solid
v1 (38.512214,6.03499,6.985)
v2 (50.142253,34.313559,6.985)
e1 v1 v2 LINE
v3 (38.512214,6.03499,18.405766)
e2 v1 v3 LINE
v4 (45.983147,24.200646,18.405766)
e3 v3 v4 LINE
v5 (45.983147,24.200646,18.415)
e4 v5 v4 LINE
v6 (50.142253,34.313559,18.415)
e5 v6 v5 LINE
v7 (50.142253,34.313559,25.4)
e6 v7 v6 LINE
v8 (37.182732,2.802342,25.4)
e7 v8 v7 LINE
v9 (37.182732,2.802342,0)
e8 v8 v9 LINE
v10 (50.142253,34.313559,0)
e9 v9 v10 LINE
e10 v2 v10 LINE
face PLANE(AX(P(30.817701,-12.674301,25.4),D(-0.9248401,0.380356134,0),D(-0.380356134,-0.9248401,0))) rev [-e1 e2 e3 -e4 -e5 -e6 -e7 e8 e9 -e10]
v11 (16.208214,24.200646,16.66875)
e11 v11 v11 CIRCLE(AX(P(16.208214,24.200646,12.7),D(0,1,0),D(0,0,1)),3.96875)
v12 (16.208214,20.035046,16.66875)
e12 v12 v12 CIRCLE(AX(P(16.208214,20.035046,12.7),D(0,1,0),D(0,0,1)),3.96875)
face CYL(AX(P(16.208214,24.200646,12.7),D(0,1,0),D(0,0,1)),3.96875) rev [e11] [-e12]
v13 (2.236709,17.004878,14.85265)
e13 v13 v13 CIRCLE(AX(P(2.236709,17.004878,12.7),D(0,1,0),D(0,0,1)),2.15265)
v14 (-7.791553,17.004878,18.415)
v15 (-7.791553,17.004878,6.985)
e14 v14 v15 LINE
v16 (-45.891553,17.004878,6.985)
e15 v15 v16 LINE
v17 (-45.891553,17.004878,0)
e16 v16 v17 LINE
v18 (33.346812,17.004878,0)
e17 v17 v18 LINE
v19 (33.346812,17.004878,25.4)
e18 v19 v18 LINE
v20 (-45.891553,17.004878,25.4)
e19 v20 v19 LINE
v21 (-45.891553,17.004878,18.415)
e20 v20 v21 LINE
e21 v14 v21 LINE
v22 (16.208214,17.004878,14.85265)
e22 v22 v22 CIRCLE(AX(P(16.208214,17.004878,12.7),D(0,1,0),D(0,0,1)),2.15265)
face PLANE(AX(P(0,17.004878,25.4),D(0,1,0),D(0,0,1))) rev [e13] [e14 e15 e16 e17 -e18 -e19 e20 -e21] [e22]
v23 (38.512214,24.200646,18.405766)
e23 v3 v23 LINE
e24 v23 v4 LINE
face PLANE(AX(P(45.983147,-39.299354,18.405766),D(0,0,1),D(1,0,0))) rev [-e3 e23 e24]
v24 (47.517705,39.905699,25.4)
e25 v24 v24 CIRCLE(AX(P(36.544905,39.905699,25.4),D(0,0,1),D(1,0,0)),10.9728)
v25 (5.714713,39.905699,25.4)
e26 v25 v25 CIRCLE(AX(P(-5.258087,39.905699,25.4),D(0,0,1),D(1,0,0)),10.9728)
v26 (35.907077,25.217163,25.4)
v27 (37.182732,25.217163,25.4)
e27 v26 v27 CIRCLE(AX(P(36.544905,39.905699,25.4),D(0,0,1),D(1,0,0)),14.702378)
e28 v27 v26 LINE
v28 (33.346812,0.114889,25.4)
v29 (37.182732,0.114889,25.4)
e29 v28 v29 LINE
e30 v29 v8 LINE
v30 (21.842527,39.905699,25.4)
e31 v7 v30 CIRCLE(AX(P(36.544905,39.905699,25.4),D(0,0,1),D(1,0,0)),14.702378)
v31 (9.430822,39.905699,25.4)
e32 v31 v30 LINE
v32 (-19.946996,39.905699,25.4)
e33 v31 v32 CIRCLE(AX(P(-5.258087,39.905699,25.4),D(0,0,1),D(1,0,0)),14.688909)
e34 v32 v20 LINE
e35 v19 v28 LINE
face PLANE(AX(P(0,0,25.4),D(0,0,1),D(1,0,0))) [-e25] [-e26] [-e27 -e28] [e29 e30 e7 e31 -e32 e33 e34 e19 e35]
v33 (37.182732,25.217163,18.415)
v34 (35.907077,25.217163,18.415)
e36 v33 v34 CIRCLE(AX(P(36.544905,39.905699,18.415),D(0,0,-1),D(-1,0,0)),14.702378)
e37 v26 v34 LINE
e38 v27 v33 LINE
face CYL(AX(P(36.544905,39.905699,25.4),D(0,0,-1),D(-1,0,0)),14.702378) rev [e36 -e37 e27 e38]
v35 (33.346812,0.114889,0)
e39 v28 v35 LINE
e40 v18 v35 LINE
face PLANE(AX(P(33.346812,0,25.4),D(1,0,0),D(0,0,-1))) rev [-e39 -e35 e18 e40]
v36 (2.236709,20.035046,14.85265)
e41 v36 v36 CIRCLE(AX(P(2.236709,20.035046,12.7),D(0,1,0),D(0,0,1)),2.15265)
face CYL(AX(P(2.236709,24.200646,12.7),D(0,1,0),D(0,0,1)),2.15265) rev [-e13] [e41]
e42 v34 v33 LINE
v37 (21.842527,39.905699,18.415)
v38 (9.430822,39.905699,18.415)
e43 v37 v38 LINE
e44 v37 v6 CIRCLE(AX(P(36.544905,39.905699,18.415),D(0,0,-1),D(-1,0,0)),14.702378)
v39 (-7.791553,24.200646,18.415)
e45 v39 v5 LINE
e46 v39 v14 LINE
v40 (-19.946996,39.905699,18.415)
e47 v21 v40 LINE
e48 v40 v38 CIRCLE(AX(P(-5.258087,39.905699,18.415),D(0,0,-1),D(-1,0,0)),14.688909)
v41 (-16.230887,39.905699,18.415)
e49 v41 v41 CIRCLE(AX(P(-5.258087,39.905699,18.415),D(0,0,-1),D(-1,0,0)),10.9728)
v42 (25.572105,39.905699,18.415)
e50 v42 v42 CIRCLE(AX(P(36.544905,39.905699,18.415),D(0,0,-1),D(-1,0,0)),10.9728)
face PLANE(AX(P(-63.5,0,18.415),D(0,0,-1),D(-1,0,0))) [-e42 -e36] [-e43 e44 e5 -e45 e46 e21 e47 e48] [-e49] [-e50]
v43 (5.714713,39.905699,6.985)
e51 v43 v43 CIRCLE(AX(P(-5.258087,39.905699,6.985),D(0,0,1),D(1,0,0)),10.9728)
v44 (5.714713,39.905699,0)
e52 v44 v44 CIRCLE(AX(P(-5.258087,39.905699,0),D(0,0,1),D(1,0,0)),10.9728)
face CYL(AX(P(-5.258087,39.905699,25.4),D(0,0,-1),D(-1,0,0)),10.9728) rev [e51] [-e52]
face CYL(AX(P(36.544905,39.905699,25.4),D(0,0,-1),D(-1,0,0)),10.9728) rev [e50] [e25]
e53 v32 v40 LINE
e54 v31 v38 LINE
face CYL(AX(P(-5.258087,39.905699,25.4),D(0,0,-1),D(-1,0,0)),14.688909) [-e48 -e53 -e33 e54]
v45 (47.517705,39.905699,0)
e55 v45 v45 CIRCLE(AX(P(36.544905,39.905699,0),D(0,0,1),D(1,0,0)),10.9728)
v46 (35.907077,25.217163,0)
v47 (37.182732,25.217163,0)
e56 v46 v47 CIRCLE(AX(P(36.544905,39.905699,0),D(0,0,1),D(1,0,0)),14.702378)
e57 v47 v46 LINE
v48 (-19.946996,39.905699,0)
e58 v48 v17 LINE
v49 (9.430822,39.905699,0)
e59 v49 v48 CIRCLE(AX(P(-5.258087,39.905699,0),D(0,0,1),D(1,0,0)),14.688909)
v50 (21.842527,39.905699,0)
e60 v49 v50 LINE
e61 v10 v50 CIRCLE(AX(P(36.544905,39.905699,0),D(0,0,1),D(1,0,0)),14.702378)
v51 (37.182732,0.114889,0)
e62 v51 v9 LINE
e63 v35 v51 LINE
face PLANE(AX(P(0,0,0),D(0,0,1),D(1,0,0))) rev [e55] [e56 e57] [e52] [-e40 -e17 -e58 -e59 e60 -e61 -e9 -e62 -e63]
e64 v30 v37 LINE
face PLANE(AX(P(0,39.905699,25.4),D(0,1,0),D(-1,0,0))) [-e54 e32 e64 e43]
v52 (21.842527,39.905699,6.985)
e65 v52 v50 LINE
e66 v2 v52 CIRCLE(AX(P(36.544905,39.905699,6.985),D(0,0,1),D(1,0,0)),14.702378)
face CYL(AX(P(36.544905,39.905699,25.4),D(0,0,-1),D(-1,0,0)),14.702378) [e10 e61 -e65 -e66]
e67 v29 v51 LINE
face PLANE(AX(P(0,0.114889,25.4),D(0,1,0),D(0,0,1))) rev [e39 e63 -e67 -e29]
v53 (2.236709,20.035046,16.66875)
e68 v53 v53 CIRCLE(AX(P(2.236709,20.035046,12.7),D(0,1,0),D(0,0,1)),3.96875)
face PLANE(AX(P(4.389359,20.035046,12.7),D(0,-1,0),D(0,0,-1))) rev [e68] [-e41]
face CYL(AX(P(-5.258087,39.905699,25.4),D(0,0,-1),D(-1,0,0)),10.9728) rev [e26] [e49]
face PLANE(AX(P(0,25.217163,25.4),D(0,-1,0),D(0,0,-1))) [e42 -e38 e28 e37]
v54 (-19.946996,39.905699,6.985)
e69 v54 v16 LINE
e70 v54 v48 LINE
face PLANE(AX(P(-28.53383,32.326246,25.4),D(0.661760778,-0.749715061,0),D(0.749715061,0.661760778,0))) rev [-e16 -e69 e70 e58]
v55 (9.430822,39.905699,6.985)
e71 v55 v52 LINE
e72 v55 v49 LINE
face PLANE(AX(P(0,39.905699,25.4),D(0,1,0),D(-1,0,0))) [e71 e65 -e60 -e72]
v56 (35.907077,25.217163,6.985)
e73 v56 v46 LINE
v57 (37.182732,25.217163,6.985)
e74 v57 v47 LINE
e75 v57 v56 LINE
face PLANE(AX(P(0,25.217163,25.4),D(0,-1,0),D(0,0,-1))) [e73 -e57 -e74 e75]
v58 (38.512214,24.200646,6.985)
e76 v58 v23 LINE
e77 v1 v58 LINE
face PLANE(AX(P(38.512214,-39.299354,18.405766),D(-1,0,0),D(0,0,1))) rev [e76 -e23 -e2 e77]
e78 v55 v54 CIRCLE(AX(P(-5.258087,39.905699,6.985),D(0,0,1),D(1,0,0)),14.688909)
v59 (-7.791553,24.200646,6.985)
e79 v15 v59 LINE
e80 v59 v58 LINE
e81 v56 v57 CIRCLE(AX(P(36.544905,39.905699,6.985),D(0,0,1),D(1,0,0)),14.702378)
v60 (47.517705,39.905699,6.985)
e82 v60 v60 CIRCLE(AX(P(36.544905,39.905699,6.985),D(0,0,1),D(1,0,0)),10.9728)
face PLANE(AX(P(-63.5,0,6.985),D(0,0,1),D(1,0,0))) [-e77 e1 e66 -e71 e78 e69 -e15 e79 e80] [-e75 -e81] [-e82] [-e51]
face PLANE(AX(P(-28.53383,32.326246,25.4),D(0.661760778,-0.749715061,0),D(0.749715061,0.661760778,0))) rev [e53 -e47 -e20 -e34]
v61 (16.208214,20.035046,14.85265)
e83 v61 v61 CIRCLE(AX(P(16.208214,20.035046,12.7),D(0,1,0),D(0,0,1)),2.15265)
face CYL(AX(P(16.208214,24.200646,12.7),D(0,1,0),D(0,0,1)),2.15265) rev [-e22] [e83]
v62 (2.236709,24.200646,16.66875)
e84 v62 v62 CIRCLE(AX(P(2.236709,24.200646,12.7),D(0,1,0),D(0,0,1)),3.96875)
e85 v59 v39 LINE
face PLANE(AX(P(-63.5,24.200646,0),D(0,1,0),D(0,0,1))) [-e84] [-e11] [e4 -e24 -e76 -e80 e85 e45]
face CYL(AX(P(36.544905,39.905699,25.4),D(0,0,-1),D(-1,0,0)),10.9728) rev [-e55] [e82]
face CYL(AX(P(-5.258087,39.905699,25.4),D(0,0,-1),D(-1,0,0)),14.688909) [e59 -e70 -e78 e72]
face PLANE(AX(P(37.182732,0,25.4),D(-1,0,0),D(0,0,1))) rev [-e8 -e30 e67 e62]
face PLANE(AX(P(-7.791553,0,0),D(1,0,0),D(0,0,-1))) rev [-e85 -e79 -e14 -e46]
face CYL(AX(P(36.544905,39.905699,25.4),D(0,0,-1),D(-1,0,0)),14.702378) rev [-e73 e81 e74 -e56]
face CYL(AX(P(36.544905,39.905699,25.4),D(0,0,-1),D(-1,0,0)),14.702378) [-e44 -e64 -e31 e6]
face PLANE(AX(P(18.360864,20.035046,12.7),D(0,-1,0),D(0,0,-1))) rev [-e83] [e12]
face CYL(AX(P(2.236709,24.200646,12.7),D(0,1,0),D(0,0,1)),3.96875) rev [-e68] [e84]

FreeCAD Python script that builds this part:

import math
import FreeCAD as App
import Part
import Sketcher
Q = App.Units.Quantity


def add_polygon(sketch, points):
    """Adds a closed chain of lines whose ends are joined by coincident constraints."""
    first, n = sketch.GeometryCount, len(points)
    for a, b in zip(points, points[1:] + points[:1]):
        sketch.addGeometry(Part.LineSegment(App.Vector(*a, 0), App.Vector(*b, 0)), False)
    for i in range(n):
        sketch.addConstraint(Sketcher.Constraint("Coincident", first + i, 2, first + (i + 1) % n, 1))

doc = App.newDocument("Part")
body = doc.addObject("PartDesign::Body", "Body")

# Sketch on XY plane
sketch1 = body.newObject("Sketcher::SketchObject", "Sketch")
sketch1.AttachmentSupport = (doc.getObject("XY_Plane"), [""])
sketch1.MapMode = "FlatFace"
sketch1.addGeometry([
    Part.LineSegment(App.Vector(37.182732, 0.114889, 0), App.Vector(37.182732, 2.802342, 0)),  # 0
    Part.LineSegment(App.Vector(37.182732, 2.802342, 0), App.Vector(50.142253, 34.313559, 0)),  # 1
    Part.ArcOfCircle(Part.Circle(App.Vector(36.544905, 39.905699, 0), App.Vector(0, 0, 1), 14.702378), math.radians(-22.355744), math.radians(180)),  # 2
    Part.LineSegment(App.Vector(21.842527, 39.905699, 0), App.Vector(9.430822, 39.905699, 0)),  # 3
    Part.ArcOfCircle(Part.Circle(App.Vector(-5.258087, 39.905699, 0), App.Vector(0, 0, 1), 14.688909), math.radians(0), math.radians(180)),  # 4
    Part.LineSegment(App.Vector(-19.946996, 39.905699, 0), App.Vector(-45.891553, 17.004878, 0)),  # 5
    Part.LineSegment(App.Vector(-45.891553, 17.004878, 0), App.Vector(33.346812, 17.004878, 0)),  # 6
    Part.LineSegment(App.Vector(33.346812, 17.004878, 0), App.Vector(33.346812, 0.114889, 0)),  # 7
    Part.LineSegment(App.Vector(33.346812, 0.114889, 0), App.Vector(37.182732, 0.114889, 0)),  # 8
    Part.ArcOfCircle(Part.Circle(App.Vector(36.544905, 39.905698, 0), App.Vector(0, 0, 1), 14.702378), math.radians(-92.486421), math.radians(-87.513579)),  # 9
    Part.LineSegment(App.Vector(35.907077, 25.217163, 0), App.Vector(37.182732, 25.217163, 0)),  # 10
    Part.Circle(App.Vector(-5.258087, 39.905699, 0), App.Vector(0, 0, 1), 10.9728),  # 11
    Part.Circle(App.Vector(36.544905, 39.905699, 0), App.Vector(0, 0, 1), 10.9728),  # 12
], False)
sketch1.addConstraint([
    Sketcher.Constraint("Coincident", 0, 2, 1, 1),
    Sketcher.Constraint("Tangent", 1, 2, 2, 1),
    Sketcher.Constraint("Coincident", 2, 2, 3, 1),
    Sketcher.Constraint("Coincident", 3, 2, 4, 1),
    Sketcher.Constraint("Coincident", 4, 2, 5, 1),
    Sketcher.Constraint("Coincident", 5, 2, 6, 1),
    Sketcher.Constraint("Coincident", 6, 2, 7, 1),
    Sketcher.Constraint("Coincident", 7, 2, 8, 1),
    Sketcher.Constraint("Coincident", 8, 2, 0, 1),
    Sketcher.Constraint("Coincident", 9, 1, 10, 1),
    Sketcher.Constraint("Coincident", 10, 2, 9, 2),
    Sketcher.Constraint("Vertical", 0),
    Sketcher.Constraint("Horizontal", 3),
    Sketcher.Constraint("Horizontal", 6),
    Sketcher.Constraint("Vertical", 7),
    Sketcher.Constraint("Horizontal", 8),
    Sketcher.Constraint("Horizontal", 10),
    Sketcher.Constraint("Coincident", 9, 3, 2, 3),
    Sketcher.Constraint("Coincident", 11, 3, 4, 3),
    Sketcher.Constraint("Coincident", 12, 3, 2, 3),
    Sketcher.Constraint("Equal", 2, 9),
    Sketcher.Constraint("Equal", 11, 12),
    Sketcher.Constraint("Horizontal", 2, 3, 4, 3),
    Sketcher.Constraint("Horizontal", 12, 3, 2, 2),
    Sketcher.Constraint("Horizontal", 3, 2, 4, 2),
    Sketcher.Constraint("Vertical", 8, 2, 10, 2),
    Sketcher.Constraint("Diameter", 11, Q("0.864 in")),
    Sketcher.Constraint("Radius", 4, Q("14.688909 mm")),
    Sketcher.Constraint("Radius", 2, Q("14.702378 mm")),
    Sketcher.Constraint("DistanceX", 8, 1, 8, 2, Q("3.835921 mm")),
    Sketcher.Constraint("DistanceY", 7, 2, 7, 1, Q("16.889989 mm")),
    Sketcher.Constraint("DistanceY", -1, 1, 2, 3, Q("39.905699 mm")),
    Sketcher.Constraint("DistanceX", 4, 2, 2, 3, Q("56.491901 mm")),
    Sketcher.Constraint("Distance", 1, Q("34.07207 mm")),
    Sketcher.Constraint("Distance", 5, Q("34.60589 mm")),
    Sketcher.Constraint("DistanceX", 6, 1, 6, 2, Q("79.238365 mm")),
    Sketcher.Constraint("DistanceX", 10, 1, 10, 2, Q("1.275655 mm")),
    Sketcher.Constraint("DistanceX", -1, 1, 3, 2, Q("9.430822 mm")),
])
pad1 = body.newObject("PartDesign::Pad", "Pad")
pad1.Profile = sketch1
pad1.Length = Q("1 in")

# Sketch on YZ plane
sketch2 = body.newObject("Sketcher::SketchObject", "Sketch001")
sketch2.AttachmentSupport = (doc.getObject("YZ_Plane"), [""])
sketch2.MapMode = "FlatFace"
add_polygon(sketch2, [(54.608076, 18.415), (24.200646, 18.415), (24.200646, 6.985), (54.608076, 6.985)])  # lines 0-3
sketch2.addConstraint([
    Sketcher.Constraint("Horizontal", 0),
    Sketcher.Constraint("Vertical", 1),
    Sketcher.Constraint("Horizontal", 2),
    Sketcher.Constraint("Vertical", 3),
    Sketcher.Constraint("DistanceY", 1, 2, 1, 1, Q("0.45 in")),
    Sketcher.Constraint("DistanceY", -1, 1, 0, 2, Q("0.725 in")),
    Sketcher.Constraint("DistanceX", 0, 2, 0, 1, Q("30.40743 mm")),
    Sketcher.Constraint("DistanceX", -1, 1, 0, 2, Q("24.200646 mm")),
])
pocket1 = body.newObject("PartDesign::Pocket", "Pocket")
pocket1.Profile = sketch2
pocket1.Length = Q("5 in")
pocket1.Midplane = True

# Sketch on XZ plane
sketch3 = body.newObject("Sketcher::SketchObject", "Sketch002")
sketch3.AttachmentSupport = (doc.getObject("XZ_Plane"), [""])
sketch3.MapMode = "FlatFace"
sketch3.AttachmentOffset = App.Placement(App.Vector(0, 0, -24.200646), App.Rotation())
sketch3.addGeometry([
    Part.Circle(App.Vector(2.236709, 12.7, 0), App.Vector(0, 0, 1), 2.15265),
    Part.Circle(App.Vector(16.208214, 12.7, 0), App.Vector(0, 0, 1), 2.15265),
], False)
sketch3.addConstraint([
    Sketcher.Constraint("Equal", 0, 1),
    Sketcher.Constraint("Horizontal", 0, 3, 1, 3),
    Sketcher.Constraint("Diameter", 0, Q("0.1695 in")),
    Sketcher.Constraint("DistanceY", -1, 1, 0, 3, Q("0.5 in")),
    Sketcher.Constraint("DistanceX", -1, 1, 0, 3, Q("2.236709 mm")),
    Sketcher.Constraint("DistanceX", -1, 1, 1, 3, Q("16.208214 mm")),
])
doc.recompute()
hole = body.newObject("PartDesign::Hole", "Hole")
hole.Profile = sketch3
hole.ThreadType = "None"
hole.Diameter = Q("0.1695 in")
hole.DepthType = "Dimension"
hole.Depth = 7.195769
hole.DrillPoint = "Flat"
hole.HoleCutType = "Counterbore"
hole.HoleCutDiameter = Q("0.3125 in")
hole.HoleCutDepth = Q("0.164 in")
hole.Reversed = True

# Sketch on XZ plane
sketch4 = body.newObject("Sketcher::SketchObject", "Sketch003")
sketch4.AttachmentSupport = (doc.getObject("XZ_Plane"), [""])
sketch4.MapMode = "FlatFace"
sketch4.AttachmentOffset = App.Placement(App.Vector(0, 0, -24.200646), App.Rotation())
add_polygon(sketch4, [(38.512214, 6.985), (38.512214, 18.405766), (45.983147, 18.405766), (45.983147, 6.985)])  # lines 0-3
sketch4.addConstraint([
    Sketcher.Constraint("Vertical", 0),
    Sketcher.Constraint("Horizontal", 1),
    Sketcher.Constraint("Vertical", 2),
    Sketcher.Constraint("Horizontal", 3),
    Sketcher.Constraint("DistanceY", -1, 1, 2, 2, Q("0.275 in")),
    Sketcher.Constraint("DistanceX", 1, 1, 1, 2, Q("7.470933 mm")),
    Sketcher.Constraint("DistanceY", 0, 1, 0, 2, Q("11.420766 mm")),
    Sketcher.Constraint("DistanceX", -1, 1, 0, 2, Q("38.512214 mm")),
])
pocket2 = body.newObject("PartDesign::Pocket", "Pocket001")
pocket2.Profile = sketch4
pocket2.Length = Q("5 in")
pocket2.Midplane = True

# Sketch on YZ plane
sketch5 = body.newObject("Sketcher::SketchObject", "Sketch004")
sketch5.AttachmentSupport = (doc.getObject("YZ_Plane"), [""])
sketch5.MapMode = "FlatFace"
sketch5.AttachmentOffset = App.Placement(App.Vector(0, 0, -45.891553), App.Rotation())
add_polygon(sketch5, [(24.200646, 18.415), (17.004878, 18.415), (17.004878, 6.985), (24.200646, 6.985)])  # lines 0-3
sketch5.addConstraint([
    Sketcher.Constraint("Horizontal", 0),
    Sketcher.Constraint("Vertical", 1),
    Sketcher.Constraint("Horizontal", 2),
    Sketcher.Constraint("Vertical", 3),
    Sketcher.Constraint("DistanceY", 1, 2, 1, 1, Q("0.45 in")),
    Sketcher.Constraint("DistanceY", -1, 1, 0, 2, Q("0.725 in")),
    Sketcher.Constraint("DistanceX", 0, 2, 0, 1, Q("7.195769 mm")),
    Sketcher.Constraint("DistanceX", -1, 1, 0, 2, Q("17.004878 mm")),
])
pocket3 = body.newObject("PartDesign::Pocket", "Pocket002")
pocket3.Profile = sketch5
pocket3.Length = Q("1.5 in")
pocket3.Reversed = True

doc.recompute()
